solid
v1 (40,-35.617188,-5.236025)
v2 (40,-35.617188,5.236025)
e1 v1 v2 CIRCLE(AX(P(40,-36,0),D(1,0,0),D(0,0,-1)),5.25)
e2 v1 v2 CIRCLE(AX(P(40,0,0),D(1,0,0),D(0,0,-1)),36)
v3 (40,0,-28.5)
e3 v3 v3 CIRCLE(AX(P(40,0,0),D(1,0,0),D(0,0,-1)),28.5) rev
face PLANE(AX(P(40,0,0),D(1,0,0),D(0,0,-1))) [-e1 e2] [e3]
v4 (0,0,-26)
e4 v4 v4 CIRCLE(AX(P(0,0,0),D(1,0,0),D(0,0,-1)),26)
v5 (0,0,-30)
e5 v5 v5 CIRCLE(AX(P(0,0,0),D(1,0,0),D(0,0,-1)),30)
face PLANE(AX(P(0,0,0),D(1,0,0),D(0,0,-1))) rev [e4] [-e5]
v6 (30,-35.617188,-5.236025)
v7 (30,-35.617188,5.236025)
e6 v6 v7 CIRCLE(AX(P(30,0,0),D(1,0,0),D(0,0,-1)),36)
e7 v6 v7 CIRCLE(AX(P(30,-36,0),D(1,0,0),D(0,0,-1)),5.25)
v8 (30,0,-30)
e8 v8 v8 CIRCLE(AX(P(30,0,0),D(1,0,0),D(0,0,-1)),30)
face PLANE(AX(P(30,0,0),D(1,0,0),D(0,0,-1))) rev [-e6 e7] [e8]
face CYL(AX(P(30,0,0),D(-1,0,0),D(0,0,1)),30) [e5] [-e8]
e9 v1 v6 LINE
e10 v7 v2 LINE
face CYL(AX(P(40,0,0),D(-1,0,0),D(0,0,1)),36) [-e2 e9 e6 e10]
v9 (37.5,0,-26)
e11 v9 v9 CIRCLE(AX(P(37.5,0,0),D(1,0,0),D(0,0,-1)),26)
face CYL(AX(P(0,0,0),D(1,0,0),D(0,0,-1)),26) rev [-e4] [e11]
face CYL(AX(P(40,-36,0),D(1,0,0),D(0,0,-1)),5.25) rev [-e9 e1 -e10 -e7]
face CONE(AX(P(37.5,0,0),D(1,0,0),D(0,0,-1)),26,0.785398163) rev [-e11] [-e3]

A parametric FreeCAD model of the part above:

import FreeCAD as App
import Part
import Sketcher
from FreeCAD import Vector


def edges_at(feature, points):
    """Names of the edges that pass closest to the given points."""
    edges = feature.Shape.Edges
    near = lambda p: min(range(len(edges)), key=lambda i: edges[i].distToShape(Part.Vertex(*p))[0])
    return sorted({f"Edge{near(p) + 1}" for p in points})

doc = App.newDocument("Part")
body = doc.addObject("PartDesign::Body", "Body")

# Sketch on YZ plane
sketch1 = body.newObject("Sketcher::SketchObject", "Sketch")
sketch1.AttachmentSupport = (doc.getObject("YZ_Plane"), [""])
sketch1.MapMode = "FlatFace"
sketch1.addGeometry(Part.Circle(Vector(0, 0, 0), Vector(0, 0, 1), 30), False)
sketch1.addConstraint([
    Sketcher.Constraint("Coincident", 0, 3, -1, 1),
    Sketcher.Constraint("Diameter", 0, 60.0),
])
pad1 = body.newObject("PartDesign::Pad", "Pad")
pad1.Profile = sketch1
pad1.Length = 30

# Sketch on YZ plane
sketch2 = body.newObject("Sketcher::SketchObject", "Sketch001")
sketch2.AttachmentSupport = (doc.getObject("YZ_Plane"), [""])
sketch2.MapMode = "FlatFace"
sketch2.AttachmentOffset = App.Placement(Vector(0, 0, 30), App.Rotation())
sketch2.addGeometry(Part.Circle(Vector(0, 0, 0), Vector(0, 0, 1), 36), False)
sketch2.addConstraint([
    Sketcher.Constraint("Coincident", 0, 3, -1, 1),
    Sketcher.Constraint("Diameter", 0, 72.0),
])
pad2 = body.newObject("PartDesign::Pad", "Pad001")
pad2.Profile = sketch2
pad2.Length = 10

# Sketch on YZ plane
sketch3 = body.newObject("Sketcher::SketchObject", "Sketch002")
sketch3.AttachmentSupport = (doc.getObject("YZ_Plane"), [""])
sketch3.MapMode = "FlatFace"
sketch3.AttachmentOffset = App.Placement(Vector(0, 0, 40), App.Rotation())
sketch3.addGeometry(Part.Circle(Vector(0, 0, 0), Vector(0, 0, 1), 26), False)
sketch3.addConstraint([
    Sketcher.Constraint("Coincident", 0, 3, -1, 1),
    Sketcher.Constraint("Diameter", 0, 52.0),
])
pocket1 = body.newObject("PartDesign::Pocket", "Pocket")
pocket1.Profile = sketch3
pocket1.Type = "ThroughAll"
doc.recompute()

chamfer = body.newObject("PartDesign::Chamfer", "Chamfer")
chamfer.Base = (pocket1, edges_at(pocket1, [(40, 0, 26)]))
chamfer.Size = 2.5

# Sketch on YZ plane
sketch4 = body.newObject("Sketcher::SketchObject", "Sketch003")
sketch4.AttachmentSupport = (doc.getObject("YZ_Plane"), [""])
sketch4.MapMode = "FlatFace"
sketch4.AttachmentOffset = App.Placement(Vector(0, 0, 40), App.Rotation())
sketch4.addGeometry(Part.Circle(Vector(-36, 0, 0), Vector(0, 0, 1), 5.25), False)
sketch4.addConstraint([
    Sketcher.Constraint("PointOnObject", 0, 3, -1),
    Sketcher.Constraint("Diameter", 0, 10.5),
    Sketcher.Constraint("DistanceX", 0, 3, -1, 1, 36.0),
])
doc.recompute()
hole = body.newObject("PartDesign::Hole", "Hole")
hole.Profile = sketch4
hole.ThreadType = "None"
hole.Diameter = 10.5
hole.DepthType = "Dimension"
hole.Depth = 20
hole.DrillPoint = "Angled"
hole.DrillPointAngle = 118

doc.recompute()
